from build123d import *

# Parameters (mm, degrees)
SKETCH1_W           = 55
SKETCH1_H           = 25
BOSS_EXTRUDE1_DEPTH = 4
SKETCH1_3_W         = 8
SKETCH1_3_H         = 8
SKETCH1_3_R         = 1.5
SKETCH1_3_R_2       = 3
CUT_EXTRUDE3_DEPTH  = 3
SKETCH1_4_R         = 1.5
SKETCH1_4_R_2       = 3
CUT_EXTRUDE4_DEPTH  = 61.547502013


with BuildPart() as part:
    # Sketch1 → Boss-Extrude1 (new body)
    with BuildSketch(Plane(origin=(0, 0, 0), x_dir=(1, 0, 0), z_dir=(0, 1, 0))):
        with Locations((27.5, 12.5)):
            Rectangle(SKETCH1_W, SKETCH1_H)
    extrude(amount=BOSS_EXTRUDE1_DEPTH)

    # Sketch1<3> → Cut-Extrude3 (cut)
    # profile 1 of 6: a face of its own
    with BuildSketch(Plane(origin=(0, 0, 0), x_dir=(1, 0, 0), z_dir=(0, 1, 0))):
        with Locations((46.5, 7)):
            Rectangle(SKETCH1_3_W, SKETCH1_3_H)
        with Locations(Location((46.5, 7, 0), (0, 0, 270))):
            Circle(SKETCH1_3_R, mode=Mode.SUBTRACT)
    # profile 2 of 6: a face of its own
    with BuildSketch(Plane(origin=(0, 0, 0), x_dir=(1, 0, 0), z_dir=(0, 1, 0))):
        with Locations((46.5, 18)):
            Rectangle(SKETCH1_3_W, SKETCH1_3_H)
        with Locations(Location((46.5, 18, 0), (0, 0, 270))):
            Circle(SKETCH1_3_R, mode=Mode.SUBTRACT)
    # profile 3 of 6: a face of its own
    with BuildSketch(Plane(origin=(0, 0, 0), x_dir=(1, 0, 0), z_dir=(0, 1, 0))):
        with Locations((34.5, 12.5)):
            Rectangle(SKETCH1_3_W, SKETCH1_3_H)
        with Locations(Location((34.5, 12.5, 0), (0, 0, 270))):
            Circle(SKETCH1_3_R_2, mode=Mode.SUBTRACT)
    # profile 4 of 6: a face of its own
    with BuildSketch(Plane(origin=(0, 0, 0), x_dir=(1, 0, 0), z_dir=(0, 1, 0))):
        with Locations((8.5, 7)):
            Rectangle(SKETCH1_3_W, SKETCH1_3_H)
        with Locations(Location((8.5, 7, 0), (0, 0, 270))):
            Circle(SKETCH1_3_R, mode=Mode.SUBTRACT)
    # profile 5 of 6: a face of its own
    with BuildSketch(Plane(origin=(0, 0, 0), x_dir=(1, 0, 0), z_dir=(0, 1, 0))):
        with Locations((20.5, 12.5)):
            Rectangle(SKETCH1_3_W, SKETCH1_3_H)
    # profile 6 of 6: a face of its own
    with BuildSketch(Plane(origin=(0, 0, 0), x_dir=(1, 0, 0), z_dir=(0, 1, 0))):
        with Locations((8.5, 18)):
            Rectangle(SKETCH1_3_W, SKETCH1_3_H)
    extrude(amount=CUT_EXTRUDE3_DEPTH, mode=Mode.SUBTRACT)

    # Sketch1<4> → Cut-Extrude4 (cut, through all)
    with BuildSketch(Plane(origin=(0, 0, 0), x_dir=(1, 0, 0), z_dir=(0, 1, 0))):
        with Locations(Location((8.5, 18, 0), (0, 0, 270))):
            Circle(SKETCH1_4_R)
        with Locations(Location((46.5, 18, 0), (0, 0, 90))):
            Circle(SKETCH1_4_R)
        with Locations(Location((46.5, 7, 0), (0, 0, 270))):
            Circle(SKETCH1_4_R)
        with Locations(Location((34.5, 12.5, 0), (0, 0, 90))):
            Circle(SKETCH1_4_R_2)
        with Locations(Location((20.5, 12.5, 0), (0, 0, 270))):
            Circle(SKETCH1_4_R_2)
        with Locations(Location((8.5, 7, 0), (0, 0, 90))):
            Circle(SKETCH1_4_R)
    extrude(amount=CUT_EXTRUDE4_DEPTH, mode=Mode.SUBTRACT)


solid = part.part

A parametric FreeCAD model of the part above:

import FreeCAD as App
import Part
import Sketcher
from FreeCAD import Vector


def add_polygon(sketch, points):
    """Adds a closed chain of lines whose ends are joined by coincident constraints."""
    first, n = sketch.GeometryCount, len(points)
    for a, b in zip(points, points[1:] + points[:1]):
        sketch.addGeometry(Part.LineSegment(App.Vector(*a, 0), App.Vector(*b, 0)), False)
    for i in range(n):
        sketch.addConstraint(Sketcher.Constraint("Coincident", first + i, 2, first + (i + 1) % n, 1))

doc = App.newDocument("Part")
params = doc.addObject("Spreadsheet::Sheet", "Params")
for row, (alias, value) in enumerate([
    ("sketch1_width", "55 mm"),
    ("sketch1_height", "25 mm"),
    ("pad1_length", "4 mm"),
    ("sketch2_diameter", "3 mm"),
    ("sketch2_diameter2", "6 mm"),
    ("sketch2_width", "8 mm"),
    ("pocket1_length", "3 mm"),
    ("sketch3_diameter", "3 mm"),
    ("sketch3_diameter2", "6 mm"),
], start=1):
    params.set(f"A{row}", alias)
    params.set(f"B{row}", "=" + value)
    params.setAlias(f"B{row}", alias)

body = doc.addObject("PartDesign::Body", "Body")

# Sketch on XZ plane
sketch1 = body.newObject("Sketcher::SketchObject", "Sketch")
sketch1.AttachmentSupport = (doc.getObject("XZ_Plane"), [""])
sketch1.MapMode = "FlatFace"
add_polygon(sketch1, [(0, -25), (0, 0), (55, 0), (55, -25)])  # lines 0-3
sketch1.addConstraint(Sketcher.Constraint("Vertical", 0))
sketch1.addConstraint(Sketcher.Constraint("Horizontal", 1))
sketch1.addConstraint(Sketcher.Constraint("Vertical", 2))
sketch1.addConstraint(Sketcher.Constraint("Horizontal", 3))
sketch1.addConstraint(Sketcher.Constraint("Coincident", 0, 2, -1, 1))
sketch1.addConstraint(Sketcher.Constraint("DistanceX", 1, 1, 1, 2, 55.0))
sketch1.addConstraint(Sketcher.Constraint("DistanceY", 0, 1, 0, 2, 25.0))
sketch1.setExpression("Constraints[9]", "Params.sketch1_width")
sketch1.setExpression("Constraints[10]", "Params.sketch1_height")
pad1 = body.newObject("PartDesign::Pad", "Pad")
pad1.Profile = sketch1
pad1.setExpression("Length", "Params.pad1_length")
pad1.Reversed = True

# Sketch on XZ plane
sketch2 = body.newObject("Sketcher::SketchObject", "Sketch001")
sketch2.AttachmentSupport = (doc.getObject("XZ_Plane"), [""])
sketch2.MapMode = "FlatFace"
add_polygon(sketch2, [(42.5, -11), (42.5, -3), (50.5, -3), (50.5, -11)])  # lines 0-3
sketch2.addGeometry(Part.Circle(Vector(46.5, -7, 0), Vector(0, 0, 1), 1.5), False)  # 4
add_polygon(sketch2, [(42.5, -22), (42.5, -14), (50.5, -14), (50.5, -22)])  # lines 5-8
sketch2.addGeometry(Part.Circle(Vector(46.5, -18, 0), Vector(0, 0, 1), 1.5), False)  # 9
add_polygon(sketch2, [(30.5, -16.5), (30.5, -8.5), (38.5, -8.5), (38.5, -16.5)])  # lines 10-13
sketch2.addGeometry(Part.Circle(Vector(34.5, -12.5, 0), Vector(0, 0, 1), 3), False)  # 14
add_polygon(sketch2, [(4.5, -11), (4.5, -3), (12.5, -3), (12.5, -11)])  # lines 15-18
sketch2.addGeometry(Part.Circle(Vector(8.5, -7, 0), Vector(0, 0, 1), 1.5), False)  # 19
add_polygon(sketch2, [(16.5, -16.5), (16.5, -8.5), (24.5, -8.5), (24.5, -16.5)])  # lines 20-23
add_polygon(sketch2, [(4.5, -22), (4.5, -14), (12.5, -14), (12.5, -22)])  # lines 24-27
sketch2.addConstraint(Sketcher.Constraint("Vertical", 0))
sketch2.addConstraint(Sketcher.Constraint("Horizontal", 1))
sketch2.addConstraint(Sketcher.Constraint("Vertical", 2))
sketch2.addConstraint(Sketcher.Constraint("Horizontal", 3))
sketch2.addConstraint(Sketcher.Constraint("Vertical", 5))
sketch2.addConstraint(Sketcher.Constraint("Horizontal", 6))
sketch2.addConstraint(Sketcher.Constraint("Vertical", 7))
sketch2.addConstraint(Sketcher.Constraint("Horizontal", 8))
sketch2.addConstraint(Sketcher.Constraint("Vertical", 10))
sketch2.addConstraint(Sketcher.Constraint("Horizontal", 11))
sketch2.addConstraint(Sketcher.Constraint("Vertical", 12))
sketch2.addConstraint(Sketcher.Constraint("Horizontal", 13))
sketch2.addConstraint(Sketcher.Constraint("Vertical", 15))
sketch2.addConstraint(Sketcher.Constraint("Horizontal", 16))
sketch2.addConstraint(Sketcher.Constraint("Vertical", 17))
sketch2.addConstraint(Sketcher.Constraint("Horizontal", 18))
sketch2.addConstraint(Sketcher.Constraint("Vertical", 20))
sketch2.addConstraint(Sketcher.Constraint("Horizontal", 21))
sketch2.addConstraint(Sketcher.Constraint("Vertical", 22))
sketch2.addConstraint(Sketcher.Constraint("Horizontal", 23))
sketch2.addConstraint(Sketcher.Constraint("Vertical", 24))
sketch2.addConstraint(Sketcher.Constraint("Horizontal", 25))
sketch2.addConstraint(Sketcher.Constraint("Vertical", 26))
sketch2.addConstraint(Sketcher.Constraint("Horizontal", 27))
sketch2.addConstraint(Sketcher.Constraint("Equal", 4, 9))
sketch2.addConstraint(Sketcher.Constraint("Equal", 9, 19))
sketch2.addConstraint(Sketcher.Constraint("Horizontal", 4, 3, 19, 3))
sketch2.addConstraint(Sketcher.Constraint("Horizontal", 1, 2, 15, 2))
sketch2.addConstraint(Sketcher.Constraint("Horizontal", 3, 2, 17, 2))
sketch2.addConstraint(Sketcher.Constraint("Horizontal", 11, 2, 20, 2))
sketch2.addConstraint(Sketcher.Constraint("Horizontal", 13, 2, 22, 2))
sketch2.addConstraint(Sketcher.Constraint("Horizontal", 6, 2, 24, 2))
sketch2.addConstraint(Sketcher.Constraint("Horizontal", 8, 2, 26, 2))
sketch2.addConstraint(Sketcher.Constraint("Vertical", 4, 3, 9, 3))
sketch2.addConstraint(Sketcher.Constraint("Vertical", 3, 2, 5, 2))
sketch2.addConstraint(Sketcher.Constraint("Vertical", 2, 2, 6, 2))
sketch2.addConstraint(Sketcher.Constraint("Vertical", 18, 2, 24, 2))
sketch2.addConstraint(Sketcher.Constraint("Vertical", 17, 2, 25, 2))
sketch2.addConstraint(Sketcher.Constraint("Equal", 8, 11))
sketch2.addConstraint(Sketcher.Constraint("Equal", 13, 16))
sketch2.addConstraint(Sketcher.Constraint("Equal", 18, 21))
sketch2.addConstraint(Sketcher.Constraint("Equal", 27, 0))
sketch2.addConstraint(Sketcher.Constraint("Equal", 2, 5))
sketch2.addConstraint(Sketcher.Constraint("Equal", 7, 10))
sketch2.addConstraint(Sketcher.Constraint("Diameter", 4, 3.0))
sketch2.addConstraint(Sketcher.Constraint("Diameter", 14, 6.0))
sketch2.addConstraint(Sketcher.Constraint("DistanceX", 1, 1, 1, 2, 8.0))
sketch2.addConstraint(Sketcher.Constraint("DistanceY", 4, 3, -1, 1, 7.0))
sketch2.addConstraint(Sketcher.Constraint("DistanceY", 9, 3, -1, 1, 18.0))
sketch2.addConstraint(Sketcher.Constraint("DistanceY", 0, 2, -1, 1, 3.0))
sketch2.addConstraint(Sketcher.Constraint("DistanceY", 5, 2, -1, 1, 14.0))
sketch2.addConstraint(Sketcher.Constraint("DistanceX", 14, 3, 4, 3, 12.0))
sketch2.addConstraint(Sketcher.Constraint("DistanceX", 19, 3, 14, 3, 26.0))
sketch2.addConstraint(Sketcher.Constraint("DistanceX", 0, 2, 4, 3, 4.0))
sketch2.addConstraint(Sketcher.Constraint("DistanceX", 10, 2, 14, 3, 4.0))
sketch2.addConstraint(Sketcher.Constraint("DistanceY", 14, 3, 10, 2, 4.0))
sketch2.addConstraint(Sketcher.Constraint("DistanceX", 15, 2, 19, 3, 4.0))
sketch2.addConstraint(Sketcher.Constraint("DistanceX", 17, 2, 20, 2, 4.0))
sketch2.addConstraint(Sketcher.Constraint("DistanceX", -1, 1, 4, 3, 46.5))
sketch2.addConstraint(Sketcher.Constraint("DistanceY", 14, 3, -1, 1, 12.5))
sketch2.setExpression("Constraints[68]", "Params.sketch2_diameter")
sketch2.setExpression("Constraints[69]", "Params.sketch2_diameter2")
sketch2.setExpression("Constraints[70]", "Params.sketch2_width")
pocket1 = body.newObject("PartDesign::Pocket", "Pocket")
pocket1.Profile = sketch2
pocket1.setExpression("Length", "Params.pocket1_length")

# Sketch on XZ plane
sketch3 = body.newObject("Sketcher::SketchObject", "Sketch002")
sketch3.AttachmentSupport = (doc.getObject("XZ_Plane"), [""])
sketch3.MapMode = "FlatFace"
sketch3.addGeometry(Part.Circle(Vector(8.5, -18, 0), Vector(0, 0, 1), 1.5), False)
sketch3.addGeometry(Part.Circle(Vector(46.5, -18, 0), Vector(0, 0, 1), 1.5), False)
sketch3.addGeometry(Part.Circle(Vector(46.5, -7, 0), Vector(0, 0, 1), 1.5), False)
sketch3.addGeometry(Part.Circle(Vector(34.5, -12.5, 0), Vector(0, 0, 1), 3), False)
sketch3.addGeometry(Part.Circle(Vector(20.5, -12.5, 0), Vector(0, 0, 1), 3), False)
sketch3.addGeometry(Part.Circle(Vector(8.5, -7, 0), Vector(0, 0, 1), 1.5), False)
sketch3.addConstraint(Sketcher.Constraint("Equal", 0, 1))
sketch3.addConstraint(Sketcher.Constraint("Equal", 1, 2))
sketch3.addConstraint(Sketcher.Constraint("Equal", 3, 4))
sketch3.addConstraint(Sketcher.Constraint("Equal", 2, 5))
sketch3.addConstraint(Sketcher.Constraint("Horizontal", 0, 3, 1, 3))
sketch3.addConstraint(Sketcher.Constraint("Horizontal", 3, 3, 4, 3))
sketch3.addConstraint(Sketcher.Constraint("Horizontal", 2, 3, 5, 3))
sketch3.addConstraint(Sketcher.Constraint("Vertical", 1, 3, 2, 3))
sketch3.addConstraint(Sketcher.Constraint("Vertical", 0, 3, 5, 3))
sketch3.addConstraint(Sketcher.Constraint("Diameter", 0, 3.0))
sketch3.addConstraint(Sketcher.Constraint("Diameter", 3, 6.0))
sketch3.addConstraint(Sketcher.Constraint("DistanceY", 0, 3, -1, 1, 18.0))
sketch3.addConstraint(Sketcher.Constraint("DistanceY", 2, 3, -1, 1, 7.0))
sketch3.addConstraint(Sketcher.Constraint("DistanceX", 0, 3, 1, 3, 38.0))
sketch3.addConstraint(Sketcher.Constraint("DistanceX", 3, 3, 1, 3, 12.0))
sketch3.addConstraint(Sketcher.Constraint("DistanceX", 0, 3, 4, 3, 12.0))
sketch3.addConstraint(Sketcher.Constraint("DistanceX", -1, 1, 0, 3, 8.5))
sketch3.addConstraint(Sketcher.Constraint("DistanceY", 3, 3, -1, 1, 12.5))
sketch3.setExpression("Constraints[9]", "Params.sketch3_diameter")
sketch3.setExpression("Constraints[10]", "Params.sketch3_diameter2")
pocket2 = body.newObject("PartDesign::Pocket", "Pocket001")
pocket2.Profile = sketch3
pocket2.Type = "ThroughAll"

doc.recompute()
